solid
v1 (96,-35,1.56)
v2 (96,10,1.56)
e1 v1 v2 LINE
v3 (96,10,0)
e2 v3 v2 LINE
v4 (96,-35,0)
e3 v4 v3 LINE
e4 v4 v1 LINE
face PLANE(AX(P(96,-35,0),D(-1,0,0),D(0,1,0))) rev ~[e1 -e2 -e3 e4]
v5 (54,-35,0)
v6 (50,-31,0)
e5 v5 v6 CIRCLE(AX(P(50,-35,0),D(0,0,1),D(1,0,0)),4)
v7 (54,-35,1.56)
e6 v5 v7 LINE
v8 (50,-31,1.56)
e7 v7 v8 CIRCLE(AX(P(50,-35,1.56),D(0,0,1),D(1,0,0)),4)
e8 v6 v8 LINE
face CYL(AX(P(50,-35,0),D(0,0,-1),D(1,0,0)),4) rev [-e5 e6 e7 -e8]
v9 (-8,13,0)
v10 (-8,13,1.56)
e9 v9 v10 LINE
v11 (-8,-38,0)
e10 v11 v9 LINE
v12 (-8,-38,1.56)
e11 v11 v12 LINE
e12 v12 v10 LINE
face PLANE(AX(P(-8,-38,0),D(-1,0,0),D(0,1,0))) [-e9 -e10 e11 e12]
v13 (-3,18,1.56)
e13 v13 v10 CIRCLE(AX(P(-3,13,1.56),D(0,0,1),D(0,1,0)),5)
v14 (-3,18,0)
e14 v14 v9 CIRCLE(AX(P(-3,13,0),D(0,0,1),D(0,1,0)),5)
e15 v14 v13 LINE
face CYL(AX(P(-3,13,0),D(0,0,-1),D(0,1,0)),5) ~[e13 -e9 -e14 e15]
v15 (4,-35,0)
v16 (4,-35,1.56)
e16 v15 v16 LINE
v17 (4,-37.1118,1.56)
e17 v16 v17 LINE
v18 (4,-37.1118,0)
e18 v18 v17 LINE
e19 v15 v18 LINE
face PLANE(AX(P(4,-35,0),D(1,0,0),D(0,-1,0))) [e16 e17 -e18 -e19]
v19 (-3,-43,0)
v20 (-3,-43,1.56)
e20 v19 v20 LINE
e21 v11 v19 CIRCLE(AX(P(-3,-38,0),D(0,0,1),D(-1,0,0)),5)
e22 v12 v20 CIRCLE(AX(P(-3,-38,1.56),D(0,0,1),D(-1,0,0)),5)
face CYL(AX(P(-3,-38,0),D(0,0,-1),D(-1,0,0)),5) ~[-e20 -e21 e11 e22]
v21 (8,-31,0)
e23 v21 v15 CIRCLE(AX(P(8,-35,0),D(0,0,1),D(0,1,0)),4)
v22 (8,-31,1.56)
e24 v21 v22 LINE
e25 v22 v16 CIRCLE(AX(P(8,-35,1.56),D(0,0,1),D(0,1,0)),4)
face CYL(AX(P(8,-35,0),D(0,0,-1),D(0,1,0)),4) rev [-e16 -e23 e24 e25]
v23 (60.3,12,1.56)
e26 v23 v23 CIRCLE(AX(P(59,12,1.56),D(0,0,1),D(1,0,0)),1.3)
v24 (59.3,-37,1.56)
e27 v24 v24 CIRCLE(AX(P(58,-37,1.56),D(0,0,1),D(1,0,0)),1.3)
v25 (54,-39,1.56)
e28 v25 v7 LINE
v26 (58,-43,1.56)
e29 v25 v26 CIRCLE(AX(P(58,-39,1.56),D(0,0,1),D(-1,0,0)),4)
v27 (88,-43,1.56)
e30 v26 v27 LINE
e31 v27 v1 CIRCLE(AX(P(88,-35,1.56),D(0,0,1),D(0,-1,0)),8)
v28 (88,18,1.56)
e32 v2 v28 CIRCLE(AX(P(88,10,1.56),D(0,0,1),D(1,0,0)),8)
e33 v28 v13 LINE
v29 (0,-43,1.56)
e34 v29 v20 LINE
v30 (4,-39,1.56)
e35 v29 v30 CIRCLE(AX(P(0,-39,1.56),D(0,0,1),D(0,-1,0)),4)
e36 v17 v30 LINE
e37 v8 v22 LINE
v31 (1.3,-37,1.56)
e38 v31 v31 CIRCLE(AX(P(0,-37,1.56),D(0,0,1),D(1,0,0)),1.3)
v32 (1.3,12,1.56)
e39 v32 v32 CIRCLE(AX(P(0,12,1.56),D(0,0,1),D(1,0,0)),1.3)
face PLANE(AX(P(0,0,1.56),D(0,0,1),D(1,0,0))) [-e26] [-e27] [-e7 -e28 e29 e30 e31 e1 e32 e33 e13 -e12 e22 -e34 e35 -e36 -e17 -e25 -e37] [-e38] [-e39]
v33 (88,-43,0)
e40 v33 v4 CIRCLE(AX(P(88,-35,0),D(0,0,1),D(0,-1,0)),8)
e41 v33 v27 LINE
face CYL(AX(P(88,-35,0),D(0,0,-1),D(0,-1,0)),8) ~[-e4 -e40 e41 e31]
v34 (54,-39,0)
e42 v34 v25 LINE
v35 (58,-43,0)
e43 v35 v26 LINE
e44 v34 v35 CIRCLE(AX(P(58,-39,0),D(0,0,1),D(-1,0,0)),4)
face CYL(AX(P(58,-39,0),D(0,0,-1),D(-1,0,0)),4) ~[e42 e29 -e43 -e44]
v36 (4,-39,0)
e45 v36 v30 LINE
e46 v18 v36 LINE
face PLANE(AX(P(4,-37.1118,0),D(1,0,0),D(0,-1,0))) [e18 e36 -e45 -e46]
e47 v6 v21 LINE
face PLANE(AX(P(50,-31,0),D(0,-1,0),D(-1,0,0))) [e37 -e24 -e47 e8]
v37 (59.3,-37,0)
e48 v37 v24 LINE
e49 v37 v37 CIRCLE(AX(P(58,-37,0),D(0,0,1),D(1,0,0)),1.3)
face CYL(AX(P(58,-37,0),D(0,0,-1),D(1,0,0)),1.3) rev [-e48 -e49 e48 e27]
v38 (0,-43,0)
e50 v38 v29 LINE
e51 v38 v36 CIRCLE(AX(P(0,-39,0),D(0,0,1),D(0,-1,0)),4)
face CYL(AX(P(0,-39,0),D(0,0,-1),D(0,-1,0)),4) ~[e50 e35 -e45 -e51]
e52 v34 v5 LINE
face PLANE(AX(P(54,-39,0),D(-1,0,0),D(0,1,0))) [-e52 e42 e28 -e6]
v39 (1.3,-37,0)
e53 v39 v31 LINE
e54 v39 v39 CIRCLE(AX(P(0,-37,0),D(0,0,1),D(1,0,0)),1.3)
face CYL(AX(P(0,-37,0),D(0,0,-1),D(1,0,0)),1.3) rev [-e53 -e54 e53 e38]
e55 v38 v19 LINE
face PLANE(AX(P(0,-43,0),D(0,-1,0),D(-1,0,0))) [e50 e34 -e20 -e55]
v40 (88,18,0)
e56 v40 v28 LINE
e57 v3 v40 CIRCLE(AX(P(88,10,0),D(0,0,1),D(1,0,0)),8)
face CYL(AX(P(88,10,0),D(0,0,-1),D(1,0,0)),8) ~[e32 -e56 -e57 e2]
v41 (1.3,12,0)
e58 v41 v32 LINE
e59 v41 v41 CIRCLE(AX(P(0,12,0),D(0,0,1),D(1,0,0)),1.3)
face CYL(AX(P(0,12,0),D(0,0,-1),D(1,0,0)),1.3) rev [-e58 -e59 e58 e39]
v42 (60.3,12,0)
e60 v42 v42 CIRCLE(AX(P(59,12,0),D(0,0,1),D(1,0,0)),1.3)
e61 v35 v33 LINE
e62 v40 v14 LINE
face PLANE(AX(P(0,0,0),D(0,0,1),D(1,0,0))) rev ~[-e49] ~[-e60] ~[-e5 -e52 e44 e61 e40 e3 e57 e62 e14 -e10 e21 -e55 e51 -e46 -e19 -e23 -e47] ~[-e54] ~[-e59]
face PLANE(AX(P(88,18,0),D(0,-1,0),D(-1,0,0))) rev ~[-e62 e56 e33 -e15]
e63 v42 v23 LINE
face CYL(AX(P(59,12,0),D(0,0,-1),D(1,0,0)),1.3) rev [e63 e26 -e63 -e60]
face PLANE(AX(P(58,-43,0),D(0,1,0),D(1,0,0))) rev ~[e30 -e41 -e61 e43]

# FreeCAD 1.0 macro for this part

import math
import FreeCAD as App
import Part
import Sketcher
from FreeCAD import Vector

doc = App.newDocument("Part")
body = doc.addObject("PartDesign::Body", "Body")

# Sketch on XY plane
sketch1 = body.newObject("Sketcher::SketchObject", "Sketch")
sketch1.AttachmentSupport = (doc.getObject("XY_Plane"), [""])
sketch1.MapMode = "FlatFace"
sketch1.addGeometry(Part.ArcOfCircle(Part.Circle(Vector(88, -35, 0), Vector(0, 0, 1), 8), math.radians(-90), math.radians(0)), False)
sketch1.addGeometry(Part.LineSegment(Vector(96, -35, 0), Vector(96, 10, 0)), False)
sketch1.addGeometry(Part.ArcOfCircle(Part.Circle(Vector(88, 10, 0), Vector(0, 0, 1), 8), math.radians(0), math.radians(90)), False)
sketch1.addGeometry(Part.LineSegment(Vector(88, 18, 0), Vector(-3, 18, 0)), False)
sketch1.addGeometry(Part.ArcOfCircle(Part.Circle(Vector(-3, 13, 0), Vector(0, 0, 1), 5), math.radians(90), math.radians(180)), False)
sketch1.addGeometry(Part.LineSegment(Vector(-8, 13, 0), Vector(-8, -38, 0)), False)
sketch1.addGeometry(Part.ArcOfCircle(Part.Circle(Vector(-3, -38, 0), Vector(0, 0, 1), 5), math.radians(180), math.radians(270)), False)
sketch1.addGeometry(Part.LineSegment(Vector(-3, -43, 0), Vector(0, -43, 0)), False)
sketch1.addGeometry(Part.ArcOfCircle(Part.Circle(Vector(0, -39, 0), Vector(0, 0, 1), 4), math.radians(-90), math.radians(0)), False)
sketch1.addGeometry(Part.LineSegment(Vector(4, -39, 0), Vector(4, -35, 0)), False)
sketch1.addGeometry(Part.ArcOfCircle(Part.Circle(Vector(8, -35, 0), Vector(0, 0, 1), 4), math.radians(90), math.radians(180)), False)
sketch1.addGeometry(Part.LineSegment(Vector(8, -31, 0), Vector(50, -31, 0)), False)
sketch1.addGeometry(Part.ArcOfCircle(Part.Circle(Vector(50, -35, 0), Vector(0, 0, 1), 4), math.radians(0), math.radians(90)), False)
sketch1.addGeometry(Part.LineSegment(Vector(54, -35, 0), Vector(54, -39, 0)), False)
sketch1.addGeometry(Part.ArcOfCircle(Part.Circle(Vector(58, -39, 0), Vector(0, 0, 1), 4), math.radians(180), math.radians(270)), False)
sketch1.addGeometry(Part.LineSegment(Vector(58, -43, 0), Vector(88, -43, 0)), False)
sketch1.addGeometry(Part.Circle(Vector(0, -37, 0), Vector(0, 0, 1), 1.3), False)
sketch1.addGeometry(Part.Circle(Vector(58, -37, 0), Vector(0, 0, 1), 1.3), False)
sketch1.addGeometry(Part.Circle(Vector(0, 12, 0), Vector(0, 0, 1), 1.3), False)
sketch1.addGeometry(Part.Circle(Vector(59, 12, 0), Vector(0, 0, 1), 1.3), False)
sketch1.addConstraint(Sketcher.Constraint("Tangent", 0, 2, 1, 1))
sketch1.addConstraint(Sketcher.Constraint("Tangent", 1, 2, 2, 1))
sketch1.addConstraint(Sketcher.Constraint("Tangent", 2, 2, 3, 1))
sketch1.addConstraint(Sketcher.Constraint("Tangent", 3, 2, 4, 1))
sketch1.addConstraint(Sketcher.Constraint("Tangent", 4, 2, 5, 1))
sketch1.addConstraint(Sketcher.Constraint("Tangent", 5, 2, 6, 1))
sketch1.addConstraint(Sketcher.Constraint("Tangent", 6, 2, 7, 1))
sketch1.addConstraint(Sketcher.Constraint("Tangent", 7, 2, 8, 1))
sketch1.addConstraint(Sketcher.Constraint("Tangent", 8, 2, 9, 1))
sketch1.addConstraint(Sketcher.Constraint("Tangent", 9, 2, 10, 2))
sketch1.addConstraint(Sketcher.Constraint("Tangent", 10, 1, 11, 1))
sketch1.addConstraint(Sketcher.Constraint("Tangent", 11, 2, 12, 2))
sketch1.addConstraint(Sketcher.Constraint("Tangent", 12, 1, 13, 1))
sketch1.addConstraint(Sketcher.Constraint("Tangent", 13, 2, 14, 1))
sketch1.addConstraint(Sketcher.Constraint("Tangent", 14, 2, 15, 1))
sketch1.addConstraint(Sketcher.Constraint("Tangent", 15, 2, 0, 1))
sketch1.addConstraint(Sketcher.Constraint("Vertical", 1))
sketch1.addConstraint(Sketcher.Constraint("Horizontal", 3))
sketch1.addConstraint(Sketcher.Constraint("Vertical", 5))
sketch1.addConstraint(Sketcher.Constraint("Horizontal", 7))
sketch1.addConstraint(Sketcher.Constraint("Vertical", 9))
sketch1.addConstraint(Sketcher.Constraint("Horizontal", 11))
sketch1.addConstraint(Sketcher.Constraint("Vertical", 13))
sketch1.addConstraint(Sketcher.Constraint("Horizontal", 15))
sketch1.addConstraint(Sketcher.Constraint("Equal", 0, 2))
sketch1.addConstraint(Sketcher.Constraint("Equal", 4, 6))
sketch1.addConstraint(Sketcher.Constraint("Equal", 8, 10))
sketch1.addConstraint(Sketcher.Constraint("Equal", 10, 12))
sketch1.addConstraint(Sketcher.Constraint("Equal", 12, 14))
sketch1.addConstraint(Sketcher.Constraint("Equal", 16, 17))
sketch1.addConstraint(Sketcher.Constraint("Equal", 17, 18))
sketch1.addConstraint(Sketcher.Constraint("Equal", 18, 19))
sketch1.addConstraint(Sketcher.Constraint("PointOnObject", 8, 3, -2))
sketch1.addConstraint(Sketcher.Constraint("PointOnObject", 16, 3, -2))
sketch1.addConstraint(Sketcher.Constraint("PointOnObject", 18, 3, -2))
sketch1.addConstraint(Sketcher.Constraint("Horizontal", 0, 3, 10, 3))
sketch1.addConstraint(Sketcher.Constraint("Horizontal", 8, 3, 14, 3))
sketch1.addConstraint(Sketcher.Constraint("Horizontal", 16, 3, 17, 3))
sketch1.addConstraint(Sketcher.Constraint("Horizontal", 18, 3, 19, 3))
sketch1.addConstraint(Sketcher.Constraint("Vertical", 14, 3, 17, 3))
sketch1.addConstraint(Sketcher.Constraint("Radius", 0, 8.0))
sketch1.addConstraint(Sketcher.Constraint("Radius", 4, 5.0))
sketch1.addConstraint(Sketcher.Constraint("Radius", 8, 4.0))
sketch1.addConstraint(Sketcher.Constraint("Diameter", 16, 2.6))
sketch1.addConstraint(Sketcher.Constraint("DistanceX", 11, 1, 11, 2, 42.0))
sketch1.addConstraint(Sketcher.Constraint("DistanceY", 16, 3, -1, 1, 37.0))
sketch1.addConstraint(Sketcher.Constraint("DistanceY", -1, 1, 18, 3, 12.0))
sketch1.addConstraint(Sketcher.Constraint("DistanceY", -1, 1, 2, 2, 18.0))
sketch1.addConstraint(Sketcher.Constraint("DistanceX", 4, 2, -1, 1, 8.0))
sketch1.addConstraint(Sketcher.Constraint("DistanceY", 10, 1, -1, 1, 31.0))
sketch1.addConstraint(Sketcher.Constraint("DistanceX", 19, 3, 1, 2, 37.0))
sketch1.addConstraint(Sketcher.Constraint("DistanceX", 3, 2, 3, 1, 91.0))
pad1 = body.newObject("PartDesign::Pad", "Pad")
pad1.Profile = sketch1
pad1.Length = 1.56

doc.recompute()
